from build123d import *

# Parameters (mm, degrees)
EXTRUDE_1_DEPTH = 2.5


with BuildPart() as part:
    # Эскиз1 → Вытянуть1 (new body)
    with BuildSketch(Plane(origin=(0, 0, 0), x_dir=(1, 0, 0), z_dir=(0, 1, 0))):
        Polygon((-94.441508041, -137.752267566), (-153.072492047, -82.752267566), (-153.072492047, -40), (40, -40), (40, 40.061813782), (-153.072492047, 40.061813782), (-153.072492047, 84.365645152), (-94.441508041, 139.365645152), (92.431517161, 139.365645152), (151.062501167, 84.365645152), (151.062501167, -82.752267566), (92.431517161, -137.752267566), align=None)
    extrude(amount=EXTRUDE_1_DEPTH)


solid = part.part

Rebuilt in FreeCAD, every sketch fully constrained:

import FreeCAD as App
import Part
import Sketcher

V = App.Vector
Q = App.Units.Quantity

doc = App.newDocument("Part")
body = doc.addObject("PartDesign::Body", "Body")

sketch1 = body.newObject("Sketcher::SketchObject", "Sketch")
sketch1.AttachmentSupport = (doc.getObject("XZ_Plane"), [""])
sketch1.MapMode = "FlatFace"
sketch1.addGeometry([
    Part.LineSegment(V(-153.072492, 82.752268, 0), V(-94.441508, 137.752268, 0)),
    Part.LineSegment(V(-94.441508, 137.752268, 0), V(92.431517, 137.752268, 0)),
    Part.LineSegment(V(92.431517, 137.752268, 0), V(151.062501, 82.752268, 0)),
    Part.LineSegment(V(151.062501, 82.752268, 0), V(151.062501, -84.365645, 0)),
    Part.LineSegment(V(151.062501, -84.365645, 0), V(92.431517, -139.365645, 0)),
    Part.LineSegment(V(92.431517, -139.365645, 0), V(-94.441508, -139.365645, 0)),
    Part.LineSegment(V(-94.441508, -139.365645, 0), V(-153.072492, -84.365645, 0)),
    Part.LineSegment(V(-153.072492, -84.365645, 0), V(-153.072492, -40.061814, 0)),
    Part.LineSegment(V(-153.072492, -40.061814, 0), V(40, -40.061814, 0)),
    Part.LineSegment(V(40, -40.061814, 0), V(40, 40, 0)),
    Part.LineSegment(V(40, 40, 0), V(-153.072492, 40, 0)),
    Part.LineSegment(V(-153.072492, 40, 0), V(-153.072492, 82.752268, 0)),
], False)
sketch1.addConstraint([
    Sketcher.Constraint("Coincident", 0, 2, 1, 1),
    Sketcher.Constraint("Coincident", 1, 2, 2, 1),
    Sketcher.Constraint("Coincident", 2, 2, 3, 1),
    Sketcher.Constraint("Coincident", 3, 2, 4, 1),
    Sketcher.Constraint("Coincident", 4, 2, 5, 1),
    Sketcher.Constraint("Coincident", 5, 2, 6, 1),
    Sketcher.Constraint("Coincident", 6, 2, 7, 1),
    Sketcher.Constraint("Coincident", 7, 2, 8, 1),
    Sketcher.Constraint("Coincident", 8, 2, 9, 1),
    Sketcher.Constraint("Coincident", 9, 2, 10, 1),
    Sketcher.Constraint("Coincident", 10, 2, 11, 1),
    Sketcher.Constraint("Coincident", 11, 2, 0, 1),
    Sketcher.Constraint("Horizontal", 1),
    Sketcher.Constraint("Vertical", 3),
    Sketcher.Constraint("Horizontal", 5),
    Sketcher.Constraint("Vertical", 7),
    Sketcher.Constraint("Horizontal", 8),
    Sketcher.Constraint("Vertical", 9),
    Sketcher.Constraint("Horizontal", 10),
    Sketcher.Constraint("Vertical", 11),
    Sketcher.Constraint("Parallel", 0, 4),
    Sketcher.Constraint("Parallel", 2, 6),
    Sketcher.Constraint("Horizontal", 3, 2, 6, 2),
    Sketcher.Constraint("Horizontal", 2, 2, 11, 2),
    Sketcher.Constraint("Vertical", 1, 2, 4, 2),
    Sketcher.Constraint("Vertical", 0, 2, 5, 2),
    Sketcher.Constraint("Vertical", 7, 2, 10, 2),
    Sketcher.Constraint("DistanceX", -1, 1, 8, 2, Q("40 mm")),
    Sketcher.Constraint("DistanceY", -1, 1, 9, 2, Q("40 mm")),
    Sketcher.Constraint("DistanceY", 2, 2, 1, 2, Q("55 mm")),
    Sketcher.Constraint("DistanceY", 7, 1, 7, 2, Q("44.303831 mm")),
    Sketcher.Constraint("DistanceX", -1, 1, 2, 2, Q("151.062501 mm")),
    Sketcher.Constraint("Distance", 0, Q("80.39025 mm")),
    Sketcher.Constraint("DistanceX", 1, 1, 1, 2, Q("186.873025 mm")),
    Sketcher.Constraint("DistanceY", 3, 2, 3, 1, Q("167.117913 mm")),
    Sketcher.Constraint("DistanceY", 9, 1, 9, 2, Q("80.061814 mm")),
])
pad1 = body.newObject("PartDesign::Pad", "Pad")
pad1.Profile = sketch1
pad1.Length = 2.5
pad1.Reversed = True

doc.recompute()
